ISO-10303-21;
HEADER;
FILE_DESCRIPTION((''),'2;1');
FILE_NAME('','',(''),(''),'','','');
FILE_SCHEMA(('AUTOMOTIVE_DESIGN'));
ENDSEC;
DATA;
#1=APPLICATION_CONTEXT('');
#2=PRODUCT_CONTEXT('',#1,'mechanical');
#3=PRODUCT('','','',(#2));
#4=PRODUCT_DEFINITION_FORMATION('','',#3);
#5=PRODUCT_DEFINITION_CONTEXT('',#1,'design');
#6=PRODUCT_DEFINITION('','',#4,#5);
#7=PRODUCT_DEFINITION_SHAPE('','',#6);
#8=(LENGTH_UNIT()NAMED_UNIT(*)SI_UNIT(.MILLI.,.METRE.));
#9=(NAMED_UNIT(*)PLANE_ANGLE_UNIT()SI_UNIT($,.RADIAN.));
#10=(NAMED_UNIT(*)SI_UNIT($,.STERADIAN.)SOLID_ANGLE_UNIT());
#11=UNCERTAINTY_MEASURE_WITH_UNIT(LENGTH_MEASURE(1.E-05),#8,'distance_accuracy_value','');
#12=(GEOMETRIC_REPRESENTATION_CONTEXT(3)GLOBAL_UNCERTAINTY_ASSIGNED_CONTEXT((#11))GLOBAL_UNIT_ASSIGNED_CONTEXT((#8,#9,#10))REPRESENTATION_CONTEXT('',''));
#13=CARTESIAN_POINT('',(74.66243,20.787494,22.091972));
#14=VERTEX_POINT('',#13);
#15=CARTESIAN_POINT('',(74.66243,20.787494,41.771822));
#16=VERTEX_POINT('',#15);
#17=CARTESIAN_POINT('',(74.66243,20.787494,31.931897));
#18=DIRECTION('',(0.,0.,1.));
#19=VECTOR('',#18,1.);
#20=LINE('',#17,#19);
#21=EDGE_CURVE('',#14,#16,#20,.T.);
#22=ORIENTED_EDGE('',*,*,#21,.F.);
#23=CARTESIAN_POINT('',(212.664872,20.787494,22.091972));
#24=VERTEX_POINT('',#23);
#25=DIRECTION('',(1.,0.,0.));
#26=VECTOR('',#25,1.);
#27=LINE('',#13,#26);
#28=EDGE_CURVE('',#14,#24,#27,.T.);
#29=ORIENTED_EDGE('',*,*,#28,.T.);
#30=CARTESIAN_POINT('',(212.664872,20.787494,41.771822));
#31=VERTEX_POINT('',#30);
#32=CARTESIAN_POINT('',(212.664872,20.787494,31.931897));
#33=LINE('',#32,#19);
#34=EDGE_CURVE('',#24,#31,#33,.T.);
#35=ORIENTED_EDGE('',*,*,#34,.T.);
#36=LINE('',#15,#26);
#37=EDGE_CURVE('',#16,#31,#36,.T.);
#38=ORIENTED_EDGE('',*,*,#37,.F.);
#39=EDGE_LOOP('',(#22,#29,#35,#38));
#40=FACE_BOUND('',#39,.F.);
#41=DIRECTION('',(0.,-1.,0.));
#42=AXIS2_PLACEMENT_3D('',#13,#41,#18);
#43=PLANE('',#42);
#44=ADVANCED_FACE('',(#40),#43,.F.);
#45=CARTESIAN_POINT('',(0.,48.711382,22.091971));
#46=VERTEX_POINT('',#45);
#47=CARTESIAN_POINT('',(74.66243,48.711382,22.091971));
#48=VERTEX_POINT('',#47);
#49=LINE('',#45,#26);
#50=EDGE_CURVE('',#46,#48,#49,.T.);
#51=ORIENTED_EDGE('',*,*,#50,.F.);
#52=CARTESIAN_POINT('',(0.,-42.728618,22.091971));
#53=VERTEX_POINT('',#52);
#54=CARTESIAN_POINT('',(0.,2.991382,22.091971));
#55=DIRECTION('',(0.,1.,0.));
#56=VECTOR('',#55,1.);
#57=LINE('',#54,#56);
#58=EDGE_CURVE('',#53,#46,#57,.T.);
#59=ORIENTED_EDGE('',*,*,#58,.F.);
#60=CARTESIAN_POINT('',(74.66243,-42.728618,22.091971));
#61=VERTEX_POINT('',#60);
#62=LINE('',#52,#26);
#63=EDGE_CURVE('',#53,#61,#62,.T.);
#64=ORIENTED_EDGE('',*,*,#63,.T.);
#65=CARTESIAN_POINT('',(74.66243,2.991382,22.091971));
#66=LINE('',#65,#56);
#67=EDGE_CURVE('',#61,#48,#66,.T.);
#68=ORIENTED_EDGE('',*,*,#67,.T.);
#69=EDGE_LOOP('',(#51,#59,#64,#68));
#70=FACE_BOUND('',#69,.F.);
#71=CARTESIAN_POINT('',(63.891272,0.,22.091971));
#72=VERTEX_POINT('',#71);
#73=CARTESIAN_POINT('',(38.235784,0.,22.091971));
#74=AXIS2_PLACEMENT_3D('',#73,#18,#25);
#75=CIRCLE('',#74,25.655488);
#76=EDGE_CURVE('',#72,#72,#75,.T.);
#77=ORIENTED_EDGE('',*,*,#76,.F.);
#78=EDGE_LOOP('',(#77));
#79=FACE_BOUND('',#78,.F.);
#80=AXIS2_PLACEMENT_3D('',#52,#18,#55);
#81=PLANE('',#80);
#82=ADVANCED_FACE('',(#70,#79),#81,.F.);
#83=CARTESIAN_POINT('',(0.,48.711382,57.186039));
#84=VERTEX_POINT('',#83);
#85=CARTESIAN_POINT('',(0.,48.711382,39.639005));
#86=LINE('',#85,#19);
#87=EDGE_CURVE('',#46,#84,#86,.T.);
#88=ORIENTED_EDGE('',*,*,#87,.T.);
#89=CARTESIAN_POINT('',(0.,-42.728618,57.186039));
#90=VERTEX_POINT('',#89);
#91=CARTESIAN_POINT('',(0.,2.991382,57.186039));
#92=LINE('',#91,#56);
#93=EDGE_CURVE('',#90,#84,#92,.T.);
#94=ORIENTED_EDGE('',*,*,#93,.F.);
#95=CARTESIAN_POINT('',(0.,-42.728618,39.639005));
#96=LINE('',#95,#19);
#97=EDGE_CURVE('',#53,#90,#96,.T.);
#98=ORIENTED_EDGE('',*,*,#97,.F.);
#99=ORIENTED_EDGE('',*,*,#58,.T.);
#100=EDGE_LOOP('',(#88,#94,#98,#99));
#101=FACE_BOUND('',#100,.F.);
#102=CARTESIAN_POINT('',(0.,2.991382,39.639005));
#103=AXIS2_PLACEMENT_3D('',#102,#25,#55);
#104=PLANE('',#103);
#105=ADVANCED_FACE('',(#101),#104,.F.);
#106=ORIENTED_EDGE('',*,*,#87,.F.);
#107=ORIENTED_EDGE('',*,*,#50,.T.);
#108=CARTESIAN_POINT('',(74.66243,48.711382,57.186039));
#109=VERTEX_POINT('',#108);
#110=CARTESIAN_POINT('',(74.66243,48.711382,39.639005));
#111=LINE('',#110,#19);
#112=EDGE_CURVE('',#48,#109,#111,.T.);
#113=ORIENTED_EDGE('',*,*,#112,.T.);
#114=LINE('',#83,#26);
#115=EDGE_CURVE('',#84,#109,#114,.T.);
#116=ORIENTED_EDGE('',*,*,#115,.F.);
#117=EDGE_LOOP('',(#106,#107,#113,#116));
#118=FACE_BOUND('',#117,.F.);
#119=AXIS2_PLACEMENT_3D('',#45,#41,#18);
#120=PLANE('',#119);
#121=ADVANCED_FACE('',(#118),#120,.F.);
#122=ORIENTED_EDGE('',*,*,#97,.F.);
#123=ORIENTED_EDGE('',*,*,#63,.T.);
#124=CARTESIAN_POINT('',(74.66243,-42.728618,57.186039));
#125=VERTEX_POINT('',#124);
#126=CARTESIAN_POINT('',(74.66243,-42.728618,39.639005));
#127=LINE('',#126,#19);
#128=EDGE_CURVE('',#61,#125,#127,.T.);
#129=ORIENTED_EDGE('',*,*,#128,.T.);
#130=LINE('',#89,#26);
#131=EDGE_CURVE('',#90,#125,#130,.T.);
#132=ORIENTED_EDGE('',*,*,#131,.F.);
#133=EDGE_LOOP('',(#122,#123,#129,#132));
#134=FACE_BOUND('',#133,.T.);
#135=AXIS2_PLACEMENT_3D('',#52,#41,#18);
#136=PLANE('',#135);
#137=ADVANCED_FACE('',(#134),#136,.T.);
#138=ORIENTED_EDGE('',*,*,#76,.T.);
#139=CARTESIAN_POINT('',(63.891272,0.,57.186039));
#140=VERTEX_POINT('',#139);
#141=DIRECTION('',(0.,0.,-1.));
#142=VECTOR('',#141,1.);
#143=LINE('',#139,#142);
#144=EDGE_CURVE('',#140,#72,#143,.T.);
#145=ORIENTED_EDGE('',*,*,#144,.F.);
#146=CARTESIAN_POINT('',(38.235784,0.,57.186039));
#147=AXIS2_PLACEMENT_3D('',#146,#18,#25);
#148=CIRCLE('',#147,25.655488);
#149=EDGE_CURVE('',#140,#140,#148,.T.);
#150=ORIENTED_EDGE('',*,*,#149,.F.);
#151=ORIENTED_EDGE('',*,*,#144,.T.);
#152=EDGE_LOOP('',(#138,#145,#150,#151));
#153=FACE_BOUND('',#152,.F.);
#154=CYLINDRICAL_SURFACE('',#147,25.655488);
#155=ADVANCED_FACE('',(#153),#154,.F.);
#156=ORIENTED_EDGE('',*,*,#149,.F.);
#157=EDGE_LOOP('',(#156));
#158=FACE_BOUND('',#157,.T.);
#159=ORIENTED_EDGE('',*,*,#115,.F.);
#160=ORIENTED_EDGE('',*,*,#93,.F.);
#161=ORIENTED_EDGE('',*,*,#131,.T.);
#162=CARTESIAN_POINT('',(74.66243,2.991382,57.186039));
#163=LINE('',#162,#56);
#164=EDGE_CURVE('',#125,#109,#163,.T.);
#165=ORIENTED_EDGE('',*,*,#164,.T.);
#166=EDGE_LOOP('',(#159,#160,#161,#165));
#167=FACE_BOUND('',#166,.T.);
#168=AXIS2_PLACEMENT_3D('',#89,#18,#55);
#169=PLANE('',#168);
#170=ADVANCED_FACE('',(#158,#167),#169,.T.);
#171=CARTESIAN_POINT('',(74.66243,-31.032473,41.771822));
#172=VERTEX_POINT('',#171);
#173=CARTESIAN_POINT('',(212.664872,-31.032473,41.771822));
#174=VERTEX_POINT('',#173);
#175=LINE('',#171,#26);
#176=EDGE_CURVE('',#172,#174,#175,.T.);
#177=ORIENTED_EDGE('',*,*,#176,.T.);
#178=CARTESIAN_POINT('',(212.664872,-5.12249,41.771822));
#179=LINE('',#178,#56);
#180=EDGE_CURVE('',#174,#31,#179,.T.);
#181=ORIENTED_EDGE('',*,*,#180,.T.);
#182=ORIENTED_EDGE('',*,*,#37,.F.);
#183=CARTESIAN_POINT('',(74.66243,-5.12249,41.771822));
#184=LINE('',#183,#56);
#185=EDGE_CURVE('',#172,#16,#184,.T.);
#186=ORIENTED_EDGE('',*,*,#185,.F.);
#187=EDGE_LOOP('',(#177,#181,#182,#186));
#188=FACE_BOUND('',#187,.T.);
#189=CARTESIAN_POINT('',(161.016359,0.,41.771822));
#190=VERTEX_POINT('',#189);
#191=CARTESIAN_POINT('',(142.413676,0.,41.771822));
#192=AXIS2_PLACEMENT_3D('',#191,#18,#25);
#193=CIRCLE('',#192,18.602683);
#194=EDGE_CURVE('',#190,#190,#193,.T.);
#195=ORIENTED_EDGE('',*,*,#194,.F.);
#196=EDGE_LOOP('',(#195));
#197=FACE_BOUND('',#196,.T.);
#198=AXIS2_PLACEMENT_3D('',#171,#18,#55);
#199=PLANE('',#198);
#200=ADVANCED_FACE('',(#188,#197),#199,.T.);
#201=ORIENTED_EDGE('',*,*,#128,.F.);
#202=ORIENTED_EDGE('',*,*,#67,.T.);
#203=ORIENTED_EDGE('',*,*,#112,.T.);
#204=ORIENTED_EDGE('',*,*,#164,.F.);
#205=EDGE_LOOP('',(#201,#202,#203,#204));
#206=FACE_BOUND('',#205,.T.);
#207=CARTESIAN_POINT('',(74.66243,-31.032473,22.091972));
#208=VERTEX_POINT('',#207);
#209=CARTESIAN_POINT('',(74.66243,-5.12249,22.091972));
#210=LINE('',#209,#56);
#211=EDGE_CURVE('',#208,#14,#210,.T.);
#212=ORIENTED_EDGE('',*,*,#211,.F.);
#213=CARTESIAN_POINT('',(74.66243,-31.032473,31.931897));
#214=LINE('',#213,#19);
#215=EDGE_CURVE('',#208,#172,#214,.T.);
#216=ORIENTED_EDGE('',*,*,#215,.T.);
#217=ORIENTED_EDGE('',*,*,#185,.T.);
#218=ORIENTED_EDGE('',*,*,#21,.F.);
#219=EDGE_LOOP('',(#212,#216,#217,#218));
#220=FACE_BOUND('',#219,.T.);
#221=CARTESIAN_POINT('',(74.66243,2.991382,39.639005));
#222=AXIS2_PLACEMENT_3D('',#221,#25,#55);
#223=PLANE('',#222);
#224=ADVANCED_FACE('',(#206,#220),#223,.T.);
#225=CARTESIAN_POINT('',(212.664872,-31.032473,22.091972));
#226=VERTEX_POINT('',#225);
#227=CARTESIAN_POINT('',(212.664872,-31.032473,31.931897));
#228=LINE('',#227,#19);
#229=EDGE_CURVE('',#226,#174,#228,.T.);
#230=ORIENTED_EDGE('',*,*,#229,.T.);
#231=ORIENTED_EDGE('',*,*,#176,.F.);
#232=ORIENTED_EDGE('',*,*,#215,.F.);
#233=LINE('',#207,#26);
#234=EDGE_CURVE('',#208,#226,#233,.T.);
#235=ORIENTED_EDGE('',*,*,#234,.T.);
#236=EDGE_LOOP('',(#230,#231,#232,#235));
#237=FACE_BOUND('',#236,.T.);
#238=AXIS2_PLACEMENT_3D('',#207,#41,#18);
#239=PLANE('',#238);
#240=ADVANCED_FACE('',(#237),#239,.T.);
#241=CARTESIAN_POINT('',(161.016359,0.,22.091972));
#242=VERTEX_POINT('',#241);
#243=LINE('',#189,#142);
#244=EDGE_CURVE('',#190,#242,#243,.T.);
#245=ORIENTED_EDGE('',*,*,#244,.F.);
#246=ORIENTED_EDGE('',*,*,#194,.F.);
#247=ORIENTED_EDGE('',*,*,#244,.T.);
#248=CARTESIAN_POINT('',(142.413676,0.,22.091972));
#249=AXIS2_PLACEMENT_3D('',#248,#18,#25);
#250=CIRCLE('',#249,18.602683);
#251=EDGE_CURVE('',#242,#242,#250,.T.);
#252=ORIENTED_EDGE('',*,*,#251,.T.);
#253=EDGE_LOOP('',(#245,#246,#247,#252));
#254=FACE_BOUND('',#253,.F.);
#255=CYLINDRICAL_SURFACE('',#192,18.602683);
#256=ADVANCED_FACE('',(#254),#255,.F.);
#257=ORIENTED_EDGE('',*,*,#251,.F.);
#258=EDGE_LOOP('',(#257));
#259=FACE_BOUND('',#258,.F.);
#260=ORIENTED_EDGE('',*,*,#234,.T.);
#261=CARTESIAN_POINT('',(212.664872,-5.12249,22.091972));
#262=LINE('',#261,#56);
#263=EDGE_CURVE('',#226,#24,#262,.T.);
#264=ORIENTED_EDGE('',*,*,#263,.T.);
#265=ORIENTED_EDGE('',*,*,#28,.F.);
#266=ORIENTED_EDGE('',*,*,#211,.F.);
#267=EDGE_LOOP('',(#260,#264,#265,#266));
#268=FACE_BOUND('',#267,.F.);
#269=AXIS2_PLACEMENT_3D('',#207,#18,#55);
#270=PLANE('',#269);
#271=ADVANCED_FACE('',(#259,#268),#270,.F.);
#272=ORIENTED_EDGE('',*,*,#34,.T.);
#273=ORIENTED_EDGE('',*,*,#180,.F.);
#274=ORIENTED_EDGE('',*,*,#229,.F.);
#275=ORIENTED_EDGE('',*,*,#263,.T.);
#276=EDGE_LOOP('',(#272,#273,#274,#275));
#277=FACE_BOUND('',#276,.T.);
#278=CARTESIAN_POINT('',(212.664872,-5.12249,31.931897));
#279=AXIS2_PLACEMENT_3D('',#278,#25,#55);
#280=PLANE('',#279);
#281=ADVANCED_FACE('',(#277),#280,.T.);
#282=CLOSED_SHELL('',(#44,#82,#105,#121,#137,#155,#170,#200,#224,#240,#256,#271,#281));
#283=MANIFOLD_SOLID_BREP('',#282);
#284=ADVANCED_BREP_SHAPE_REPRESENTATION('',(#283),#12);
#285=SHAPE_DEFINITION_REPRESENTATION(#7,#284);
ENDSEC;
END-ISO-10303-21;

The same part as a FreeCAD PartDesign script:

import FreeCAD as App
import Part
import Sketcher
from FreeCAD import Vector
Q = App.Units.Quantity

doc = App.newDocument("Part")
params = doc.addObject("Spreadsheet::Sheet", "Params")
for row, (alias, value) in enumerate([
    ("sketch1_width", "3.6 in"),
    ("pad1_length", "74.66243 mm"),
    ("pocket1_length", "59.964648 mm"),
    ("pad2_length", "138.002442 mm"),
    ("pocket2_length", "87.077601 mm"),
], start=1):
    params.set(f"A{row}", alias)
    params.set(f"B{row}", "=" + value)
    params.setAlias(f"B{row}", alias)

body = doc.addObject("PartDesign::Body", "Body")

sketch1 = doc.addObject("Sketcher::SketchObject", "Sketch")
body.addObject(sketch1)
sketch1.AttachmentSupport = (doc.YZ_Plane, [""])
sketch1.MapMode = "FlatFace"
sketch1.addGeometry([
    Part.LineSegment(Vector(-42.728618, 57.186039, 0), Vector(-42.728618, 22.091971, 0)),
    Part.LineSegment(Vector(-42.728618, 22.091971, 0), Vector(48.711382, 22.091971, 0)),
    Part.LineSegment(Vector(48.711382, 22.091971, 0), Vector(48.711382, 57.186039, 0)),
    Part.LineSegment(Vector(48.711382, 57.186039, 0), Vector(-42.728618, 57.186039, 0)),
], False)
sketch1.addConstraint([
    Sketcher.Constraint("Coincident", 0, 2, 1, 1),
    Sketcher.Constraint("Coincident", 1, 2, 2, 1),
    Sketcher.Constraint("Coincident", 2, 2, 3, 1),
    Sketcher.Constraint("Coincident", 3, 2, 0, 1),
    Sketcher.Constraint("Vertical", 0),
    Sketcher.Constraint("Horizontal", 1),
    Sketcher.Constraint("Vertical", 2),
    Sketcher.Constraint("Horizontal", 3),
    Sketcher.Constraint("DistanceX", 1, 1, 1, 2, Q("3.6 in")),
    Sketcher.Constraint("DistanceY", 0, 2, 0, 1, Q("35.094067 mm")),
    Sketcher.Constraint("DistanceY", -1, 1, 0, 2, Q("22.091971 mm")),
    Sketcher.Constraint("DistanceX", 0, 2, -1, 1, Q("42.728618 mm")),
])
sketch1.setExpression("Constraints[8]", "Params.sketch1_width")
pad1 = doc.addObject("PartDesign::Pad", "Pad")
body.addObject(pad1)
pad1.Profile = sketch1
pad1.setExpression("Length", "Params.pad1_length")

sketch2 = doc.addObject("Sketcher::SketchObject", "Sketch001")
body.addObject(sketch2)
sketch2.AttachmentSupport = (doc.XY_Plane, [""])
sketch2.MapMode = "FlatFace"
sketch2.AttachmentOffset = App.Placement(Vector(0, 0, 57.186039), App.Rotation())
sketch2.addGeometry(Part.Circle(Vector(38.235784, 0, 0), Vector(0, 0, 1), 25.655488), False)
sketch2.addConstraint([
    Sketcher.Constraint("PointOnObject", 0, 3, -1),
    Sketcher.Constraint("Diameter", 0, Q("51.310976 mm")),
    Sketcher.Constraint("DistanceX", -1, 1, 0, 3, Q("38.235784 mm")),
])
pocket1 = doc.addObject("PartDesign::Pocket", "Pocket")
body.addObject(pocket1)
pocket1.Profile = sketch2
pocket1.setExpression("Length", "Params.pocket1_length")

sketch3 = doc.addObject("Sketcher::SketchObject", "Sketch002")
body.addObject(sketch3)
sketch3.AttachmentSupport = (doc.YZ_Plane, [""])
sketch3.MapMode = "FlatFace"
sketch3.AttachmentOffset = App.Placement(Vector(0, 0, 74.66243), App.Rotation())
sketch3.addGeometry([
    Part.LineSegment(Vector(-31.032473, 41.771822, 0), Vector(-31.032473, 22.091972, 0)),
    Part.LineSegment(Vector(-31.032473, 22.091972, 0), Vector(20.787494, 22.091972, 0)),
    Part.LineSegment(Vector(20.787494, 22.091972, 0), Vector(20.787494, 41.771822, 0)),
    Part.LineSegment(Vector(20.787494, 41.771822, 0), Vector(-31.032473, 41.771822, 0)),
], False)
sketch3.addConstraint([
    Sketcher.Constraint("Coincident", 0, 2, 1, 1),
    Sketcher.Constraint("Coincident", 1, 2, 2, 1),
    Sketcher.Constraint("Coincident", 2, 2, 3, 1),
    Sketcher.Constraint("Coincident", 3, 2, 0, 1),
    Sketcher.Constraint("Vertical", 0),
    Sketcher.Constraint("Horizontal", 1),
    Sketcher.Constraint("Vertical", 2),
    Sketcher.Constraint("Horizontal", 3),
    Sketcher.Constraint("DistanceY", 0, 2, 0, 1, Q("19.67985 mm")),
    Sketcher.Constraint("DistanceX", 1, 1, 1, 2, Q("51.819967 mm")),
    Sketcher.Constraint("DistanceY", -1, 1, 0, 2, Q("22.091972 mm")),
    Sketcher.Constraint("DistanceX", 0, 2, -1, 1, Q("31.032473 mm")),
])
pad2 = doc.addObject("PartDesign::Pad", "Pad001")
body.addObject(pad2)
pad2.Profile = sketch3
pad2.setExpression("Length", "Params.pad2_length")

sketch4 = doc.addObject("Sketcher::SketchObject", "Sketch003")
body.addObject(sketch4)
sketch4.AttachmentSupport = (doc.XY_Plane, [""])
sketch4.MapMode = "FlatFace"
sketch4.AttachmentOffset = App.Placement(Vector(0, 0, 41.771822), App.Rotation())
sketch4.addGeometry(Part.Circle(Vector(142.413676, 0, 0), Vector(0, 0, 1), 18.602683), False)
sketch4.addConstraint([
    Sketcher.Constraint("PointOnObject", 0, 3, -1),
    Sketcher.Constraint("Diameter", 0, Q("37.205366 mm")),
    Sketcher.Constraint("DistanceX", -1, 1, 0, 3, Q("142.413676 mm")),
])
pocket2 = doc.addObject("PartDesign::Pocket", "Pocket001")
body.addObject(pocket2)
pocket2.Profile = sketch4
pocket2.setExpression("Length", "Params.pocket2_length")

doc.recompute()
